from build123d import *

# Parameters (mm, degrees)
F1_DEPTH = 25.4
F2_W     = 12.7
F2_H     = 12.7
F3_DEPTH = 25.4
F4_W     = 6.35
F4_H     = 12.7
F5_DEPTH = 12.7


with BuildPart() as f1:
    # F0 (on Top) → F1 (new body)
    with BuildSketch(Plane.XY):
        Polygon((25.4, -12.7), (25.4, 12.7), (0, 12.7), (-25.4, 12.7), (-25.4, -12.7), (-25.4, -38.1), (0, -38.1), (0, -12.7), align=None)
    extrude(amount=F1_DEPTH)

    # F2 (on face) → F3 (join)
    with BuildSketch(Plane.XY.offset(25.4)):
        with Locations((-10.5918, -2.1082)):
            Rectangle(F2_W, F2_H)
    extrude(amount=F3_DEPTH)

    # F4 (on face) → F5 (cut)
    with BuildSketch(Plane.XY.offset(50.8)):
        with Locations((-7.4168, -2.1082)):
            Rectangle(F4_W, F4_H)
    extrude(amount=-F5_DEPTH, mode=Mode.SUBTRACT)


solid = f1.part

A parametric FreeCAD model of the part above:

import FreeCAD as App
import Part
import Sketcher
Q = App.Units.Quantity

doc = App.newDocument("Part")
body = doc.addObject("PartDesign::Body", "Body")

# Sketch on XY plane
sketch1 = doc.addObject("Sketcher::SketchObject", "Sketch")
body.addObject(sketch1)
sketch1.AttachmentSupport = (doc.XY_Plane, [""])
sketch1.MapMode = "FlatFace"
sketch1.addGeometry(Part.LineSegment(App.Vector(25, -13, 0), App.Vector(25, 13, 0)), False)
sketch1.addGeometry(Part.LineSegment(App.Vector(25, 13, 0), App.Vector(-25, 13, 0)), False)
sketch1.addGeometry(Part.LineSegment(App.Vector(-25, 13, 0), App.Vector(-25, -38, 0)), False)
sketch1.addGeometry(Part.LineSegment(App.Vector(-25, -38, 0), App.Vector(0, -38, 0)), False)
sketch1.addGeometry(Part.LineSegment(App.Vector(0, -38, 0), App.Vector(0, -13, 0)), False)
sketch1.addGeometry(Part.LineSegment(App.Vector(0, -13, 0), App.Vector(25, -13, 0)), False)
sketch1.addConstraint(Sketcher.Constraint("Coincident", 0, 2, 1, 1))
sketch1.addConstraint(Sketcher.Constraint("Coincident", 1, 2, 2, 1))
sketch1.addConstraint(Sketcher.Constraint("Coincident", 2, 2, 3, 1))
sketch1.addConstraint(Sketcher.Constraint("Coincident", 3, 2, 4, 1))
sketch1.addConstraint(Sketcher.Constraint("Coincident", 4, 2, 5, 1))
sketch1.addConstraint(Sketcher.Constraint("Coincident", 5, 2, 0, 1))
sketch1.addConstraint(Sketcher.Constraint("Vertical", 0))
sketch1.addConstraint(Sketcher.Constraint("Horizontal", 1))
sketch1.addConstraint(Sketcher.Constraint("Vertical", 2))
sketch1.addConstraint(Sketcher.Constraint("Horizontal", 3))
sketch1.addConstraint(Sketcher.Constraint("Vertical", 4))
sketch1.addConstraint(Sketcher.Constraint("Horizontal", 5))
sketch1.addConstraint(Sketcher.Constraint("Symmetric", 1, 2, 5, 2, -1, 1))
sketch1.addConstraint(Sketcher.Constraint("PointOnObject", 3, 2, -2))
sketch1.addConstraint(Sketcher.Constraint("Equal", 5, 0))
sketch1.addConstraint(Sketcher.Constraint("Equal", 1, 2))
sketch1.addConstraint(Sketcher.Constraint("DistanceX", 1, 2, 1, 1, Q("2 in")))
pad1 = doc.addObject("PartDesign::Pad", "Pad")
body.addObject(pad1)
pad1.Profile = sketch1
pad1.Length = Q("1 in")

# Sketch on XY plane
sketch2 = doc.addObject("Sketcher::SketchObject", "Sketch001")
body.addObject(sketch2)
sketch2.AttachmentSupport = (doc.XY_Plane, [""])
sketch2.MapMode = "FlatFace"
sketch2.AttachmentOffset = App.Placement(App.Vector(0, 0, 1 * 25.4), App.Rotation())
sketch2.addGeometry(Part.LineSegment(App.Vector(-17, 4, 0), App.Vector(-17, -8, 0)), False)
sketch2.addGeometry(Part.LineSegment(App.Vector(-17, -8, 0), App.Vector(-4, -8, 0)), False)
sketch2.addGeometry(Part.LineSegment(App.Vector(-4, -8, 0), App.Vector(-4, 4, 0)), False)
sketch2.addGeometry(Part.LineSegment(App.Vector(-4, 4, 0), App.Vector(-17, 4, 0)), False)
sketch2.addConstraint(Sketcher.Constraint("Coincident", 0, 2, 1, 1))
sketch2.addConstraint(Sketcher.Constraint("Coincident", 1, 2, 2, 1))
sketch2.addConstraint(Sketcher.Constraint("Coincident", 2, 2, 3, 1))
sketch2.addConstraint(Sketcher.Constraint("Coincident", 3, 2, 0, 1))
sketch2.addConstraint(Sketcher.Constraint("Vertical", 0))
sketch2.addConstraint(Sketcher.Constraint("Horizontal", 1))
sketch2.addConstraint(Sketcher.Constraint("Vertical", 2))
sketch2.addConstraint(Sketcher.Constraint("Horizontal", 3))
sketch2.addConstraint(Sketcher.Constraint("Equal", 3, 0))
sketch2.addConstraint(Sketcher.Constraint("DistanceX", 1, 1, 1, 2, Q("0.5 in")))
sketch2.addConstraint(Sketcher.Constraint("DistanceX", 0, 2, -1, 1, Q("0.667 in")))
sketch2.addConstraint(Sketcher.Constraint("DistanceY", 0, 2, -1, 1, Q("0.333 in")))
pad2 = doc.addObject("PartDesign::Pad", "Pad001")
body.addObject(pad2)
pad2.Profile = sketch2
pad2.Length = Q("1 in")

# Sketch on XY plane
sketch3 = doc.addObject("Sketcher::SketchObject", "Sketch002")
body.addObject(sketch3)
sketch3.AttachmentSupport = (doc.XY_Plane, [""])
sketch3.MapMode = "FlatFace"
sketch3.AttachmentOffset = App.Placement(App.Vector(0, 0, 2 * 25.4), App.Rotation())
sketch3.addGeometry(Part.LineSegment(App.Vector(-11, 4, 0), App.Vector(-11, -8, 0)), False)
sketch3.addGeometry(Part.LineSegment(App.Vector(-11, -8, 0), App.Vector(-4, -8, 0)), False)
sketch3.addGeometry(Part.LineSegment(App.Vector(-4, -8, 0), App.Vector(-4, 4, 0)), False)
sketch3.addGeometry(Part.LineSegment(App.Vector(-4, 4, 0), App.Vector(-11, 4, 0)), False)
sketch3.addConstraint(Sketcher.Constraint("Coincident", 0, 2, 1, 1))
sketch3.addConstraint(Sketcher.Constraint("Coincident", 1, 2, 2, 1))
sketch3.addConstraint(Sketcher.Constraint("Coincident", 2, 2, 3, 1))
sketch3.addConstraint(Sketcher.Constraint("Coincident", 3, 2, 0, 1))
sketch3.addConstraint(Sketcher.Constraint("Vertical", 0))
sketch3.addConstraint(Sketcher.Constraint("Horizontal", 1))
sketch3.addConstraint(Sketcher.Constraint("Vertical", 2))
sketch3.addConstraint(Sketcher.Constraint("Horizontal", 3))
sketch3.addConstraint(Sketcher.Constraint("DistanceY", 0, 2, 0, 1, Q("0.5 in")))
sketch3.addConstraint(Sketcher.Constraint("DistanceX", 1, 1, 1, 2, Q("0.25 in")))
sketch3.addConstraint(Sketcher.Constraint("DistanceX", 0, 2, -1, 1, Q("0.417 in")))
sketch3.addConstraint(Sketcher.Constraint("DistanceY", 0, 2, -1, 1, Q("0.333 in")))
pocket1 = doc.addObject("PartDesign::Pocket", "Pocket")
body.addObject(pocket1)
pocket1.Profile = sketch3
pocket1.Length = Q("0.5 in")

doc.recompute()
